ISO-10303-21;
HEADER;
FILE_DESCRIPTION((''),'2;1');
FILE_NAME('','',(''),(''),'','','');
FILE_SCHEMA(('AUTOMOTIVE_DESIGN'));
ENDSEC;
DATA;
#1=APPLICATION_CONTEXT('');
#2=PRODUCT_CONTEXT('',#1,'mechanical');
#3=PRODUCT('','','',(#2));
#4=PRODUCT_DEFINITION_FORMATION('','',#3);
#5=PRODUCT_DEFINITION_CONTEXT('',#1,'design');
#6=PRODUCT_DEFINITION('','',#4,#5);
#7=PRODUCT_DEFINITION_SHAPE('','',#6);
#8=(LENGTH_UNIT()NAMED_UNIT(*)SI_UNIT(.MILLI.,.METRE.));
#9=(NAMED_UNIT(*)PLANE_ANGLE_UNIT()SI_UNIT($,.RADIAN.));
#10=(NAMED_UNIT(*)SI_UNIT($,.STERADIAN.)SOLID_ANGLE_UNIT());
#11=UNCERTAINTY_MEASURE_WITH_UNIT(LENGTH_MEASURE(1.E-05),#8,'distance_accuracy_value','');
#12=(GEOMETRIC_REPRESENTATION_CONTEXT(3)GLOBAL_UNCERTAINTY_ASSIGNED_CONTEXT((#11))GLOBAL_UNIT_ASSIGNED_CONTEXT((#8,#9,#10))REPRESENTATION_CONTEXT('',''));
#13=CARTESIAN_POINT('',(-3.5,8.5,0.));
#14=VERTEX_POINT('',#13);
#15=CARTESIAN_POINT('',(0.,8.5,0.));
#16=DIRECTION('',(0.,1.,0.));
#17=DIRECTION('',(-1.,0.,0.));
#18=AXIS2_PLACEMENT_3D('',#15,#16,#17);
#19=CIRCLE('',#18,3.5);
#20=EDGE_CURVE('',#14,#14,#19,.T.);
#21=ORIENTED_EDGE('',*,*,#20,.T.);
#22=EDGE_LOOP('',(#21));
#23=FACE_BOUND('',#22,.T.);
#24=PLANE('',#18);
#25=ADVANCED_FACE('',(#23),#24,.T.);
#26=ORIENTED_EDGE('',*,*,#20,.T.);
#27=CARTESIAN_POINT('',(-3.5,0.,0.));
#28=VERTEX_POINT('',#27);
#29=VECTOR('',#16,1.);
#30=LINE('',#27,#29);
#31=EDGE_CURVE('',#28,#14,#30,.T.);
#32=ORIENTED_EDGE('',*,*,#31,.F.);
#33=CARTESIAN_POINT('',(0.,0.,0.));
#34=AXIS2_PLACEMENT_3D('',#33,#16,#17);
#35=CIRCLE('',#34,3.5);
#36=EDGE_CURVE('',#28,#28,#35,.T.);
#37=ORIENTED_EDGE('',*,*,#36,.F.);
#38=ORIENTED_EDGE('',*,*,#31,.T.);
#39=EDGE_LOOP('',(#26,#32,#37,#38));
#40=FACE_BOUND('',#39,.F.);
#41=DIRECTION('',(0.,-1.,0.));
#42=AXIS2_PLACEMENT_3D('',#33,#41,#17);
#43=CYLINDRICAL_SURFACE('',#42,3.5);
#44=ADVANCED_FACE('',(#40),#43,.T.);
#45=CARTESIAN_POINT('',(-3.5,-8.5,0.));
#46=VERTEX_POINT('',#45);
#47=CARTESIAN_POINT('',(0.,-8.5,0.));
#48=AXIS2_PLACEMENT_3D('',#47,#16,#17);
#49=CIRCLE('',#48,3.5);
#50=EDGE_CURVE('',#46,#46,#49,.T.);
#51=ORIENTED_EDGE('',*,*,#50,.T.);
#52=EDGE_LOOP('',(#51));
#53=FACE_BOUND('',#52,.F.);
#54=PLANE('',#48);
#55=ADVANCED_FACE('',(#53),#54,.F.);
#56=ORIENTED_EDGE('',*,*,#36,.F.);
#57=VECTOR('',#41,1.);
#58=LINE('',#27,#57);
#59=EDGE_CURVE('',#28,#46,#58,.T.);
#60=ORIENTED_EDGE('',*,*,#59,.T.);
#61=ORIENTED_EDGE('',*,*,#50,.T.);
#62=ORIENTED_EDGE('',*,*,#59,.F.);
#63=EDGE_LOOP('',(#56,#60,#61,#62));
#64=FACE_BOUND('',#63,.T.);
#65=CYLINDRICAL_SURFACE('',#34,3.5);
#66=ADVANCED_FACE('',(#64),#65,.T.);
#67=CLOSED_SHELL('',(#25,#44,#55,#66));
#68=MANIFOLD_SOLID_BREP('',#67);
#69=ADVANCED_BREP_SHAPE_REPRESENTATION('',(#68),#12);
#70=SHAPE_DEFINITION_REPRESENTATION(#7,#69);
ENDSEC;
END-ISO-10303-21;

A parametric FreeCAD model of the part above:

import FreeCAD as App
import Part
import Sketcher

doc = App.newDocument("Part")
params = doc.addObject("Spreadsheet::Sheet", "Params")
for row, (alias, value) in enumerate([
    ("sketch1_diameter", "7 mm"),
    ("pad1_length", "17 mm"),
], start=1):
    params.set(f"A{row}", alias)
    params.set(f"B{row}", "=" + value)
    params.setAlias(f"B{row}", alias)

body = doc.addObject("PartDesign::Body", "Body")

# Sketch on XZ plane
sketch1 = doc.addObject("Sketcher::SketchObject", "Sketch")
body.addObject(sketch1)
sketch1.AttachmentSupport = (doc.XZ_Plane, [""])
sketch1.MapMode = "FlatFace"
sketch1.addGeometry(Part.Circle(App.Vector(0, 0, 0), App.Vector(0, 0, 1), 3.5), False)
sketch1.addConstraint(Sketcher.Constraint("Coincident", 0, 3, -1, 1))
sketch1.addConstraint(Sketcher.Constraint("Diameter", 0, 7.0))
sketch1.setExpression("Constraints[1]", "Params.sketch1_diameter")
pad1 = doc.addObject("PartDesign::Pad", "Pad")
body.addObject(pad1)
pad1.Profile = sketch1
pad1.setExpression("Length", "Params.pad1_length")
pad1.Midplane = True

doc.recompute()
